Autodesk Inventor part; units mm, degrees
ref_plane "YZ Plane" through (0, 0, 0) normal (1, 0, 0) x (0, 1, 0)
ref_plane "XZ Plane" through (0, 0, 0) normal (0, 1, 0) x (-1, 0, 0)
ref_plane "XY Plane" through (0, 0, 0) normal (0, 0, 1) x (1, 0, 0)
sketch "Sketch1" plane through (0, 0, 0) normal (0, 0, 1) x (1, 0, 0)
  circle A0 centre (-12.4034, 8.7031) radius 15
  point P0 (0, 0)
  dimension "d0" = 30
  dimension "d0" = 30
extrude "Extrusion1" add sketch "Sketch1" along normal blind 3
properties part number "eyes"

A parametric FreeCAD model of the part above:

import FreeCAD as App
import Part
import Sketcher
Q = App.Units.Quantity

doc = App.newDocument("Part")
body = doc.addObject("PartDesign::Body", "Body")

# Sketch on XY plane
sketch1 = body.newObject("Sketcher::SketchObject", "Sketch")
sketch1.AttachmentSupport = (doc.getObject("XY_Plane"), [""])
sketch1.MapMode = "FlatFace"
sketch1.addGeometry(Part.Circle(App.Vector(-12.4034, 8.7031, 0), App.Vector(0, 0, 1), 15), False)
sketch1.addConstraint(Sketcher.Constraint("Diameter", 0, Q("30 mm")))
sketch1.addConstraint(Sketcher.Constraint("DistanceY", -1, 1, 0, 3, Q("8.703 mm")))
sketch1.addConstraint(Sketcher.Constraint("DistanceX", 0, 3, -1, 1, Q("12.4034 mm")))
pad1 = body.newObject("PartDesign::Pad", "Pad")
pad1.Profile = sketch1
pad1.Length = 3

doc.recompute()
